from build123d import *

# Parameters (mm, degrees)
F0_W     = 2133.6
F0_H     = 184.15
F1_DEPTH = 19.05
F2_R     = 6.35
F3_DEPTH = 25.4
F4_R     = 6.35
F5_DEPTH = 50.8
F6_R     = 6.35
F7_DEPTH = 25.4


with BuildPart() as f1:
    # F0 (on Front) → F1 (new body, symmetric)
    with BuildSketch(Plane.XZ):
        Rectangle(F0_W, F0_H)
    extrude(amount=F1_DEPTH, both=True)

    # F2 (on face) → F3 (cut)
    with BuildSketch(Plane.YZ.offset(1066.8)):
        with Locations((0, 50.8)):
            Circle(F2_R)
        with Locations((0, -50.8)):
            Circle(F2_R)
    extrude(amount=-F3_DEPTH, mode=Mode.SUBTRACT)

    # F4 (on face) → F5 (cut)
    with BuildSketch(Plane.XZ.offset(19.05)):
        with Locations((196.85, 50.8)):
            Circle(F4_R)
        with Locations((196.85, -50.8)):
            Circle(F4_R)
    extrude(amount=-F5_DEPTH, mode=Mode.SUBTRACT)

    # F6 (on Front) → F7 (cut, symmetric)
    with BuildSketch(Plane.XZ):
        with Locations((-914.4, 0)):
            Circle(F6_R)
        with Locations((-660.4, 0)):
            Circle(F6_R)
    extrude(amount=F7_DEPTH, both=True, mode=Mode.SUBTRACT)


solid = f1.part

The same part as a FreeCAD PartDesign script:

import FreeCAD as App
import Part
import Sketcher
from FreeCAD import Vector
Q = App.Units.Quantity

doc = App.newDocument("Part")
body = doc.addObject("PartDesign::Body", "Body")

# Sketch on XZ plane
sketch1 = doc.addObject("Sketcher::SketchObject", "Sketch")
body.addObject(sketch1)
sketch1.AttachmentSupport = (doc.XZ_Plane, [""])
sketch1.MapMode = "FlatFace"
sketch1.addGeometry([
    Part.LineSegment(Vector(-1067, 92, 0), Vector(-1067, -92, 0)),
    Part.LineSegment(Vector(-1067, -92, 0), Vector(1067, -92, 0)),
    Part.LineSegment(Vector(1067, -92, 0), Vector(1067, 92, 0)),
    Part.LineSegment(Vector(1067, 92, 0), Vector(-1067, 92, 0)),
], False)
sketch1.addConstraint([
    Sketcher.Constraint("Coincident", 0, 2, 1, 1),
    Sketcher.Constraint("Coincident", 1, 2, 2, 1),
    Sketcher.Constraint("Coincident", 2, 2, 3, 1),
    Sketcher.Constraint("Coincident", 3, 2, 0, 1),
    Sketcher.Constraint("Vertical", 0),
    Sketcher.Constraint("Horizontal", 1),
    Sketcher.Constraint("Vertical", 2),
    Sketcher.Constraint("Horizontal", 3),
    Sketcher.Constraint("Symmetric", 0, 2, 2, 2, -1, 1),
    Sketcher.Constraint("DistanceX", 1, 1, 1, 2, Q("84 in")),
    Sketcher.Constraint("DistanceY", 0, 2, 0, 1, Q("7.25 in")),
])
pad1 = doc.addObject("PartDesign::Pad", "Pad")
body.addObject(pad1)
pad1.Profile = sketch1
pad1.Length = Q("1.5 in")
pad1.Midplane = True

# Sketch on YZ plane
sketch2 = doc.addObject("Sketcher::SketchObject", "Sketch001")
body.addObject(sketch2)
sketch2.AttachmentSupport = (doc.YZ_Plane, [""])
sketch2.MapMode = "FlatFace"
sketch2.AttachmentOffset = App.Placement(Vector(0, 0, 42 * 25.4), App.Rotation())
sketch2.addGeometry([
    Part.Circle(Vector(0, 51, 0), Vector(0, 0, 1), 6),
    Part.Circle(Vector(0, -51, 0), Vector(0, 0, 1), 6),
], False)
sketch2.addConstraint([
    Sketcher.Constraint("Equal", 0, 1),
    Sketcher.Constraint("Symmetric", 0, 3, 1, 3, -1, 1),
    Sketcher.Constraint("PointOnObject", 0, 3, -2),
    Sketcher.Constraint("Diameter", 0, Q("0.5 in")),
    Sketcher.Constraint("DistanceY", -1, 1, 0, 3, Q("2 in")),
])
pocket1 = doc.addObject("PartDesign::Pocket", "Pocket")
body.addObject(pocket1)
pocket1.Profile = sketch2
pocket1.Length = Q("1 in")

# Sketch on XZ plane
sketch3 = doc.addObject("Sketcher::SketchObject", "Sketch002")
body.addObject(sketch3)
sketch3.AttachmentSupport = (doc.XZ_Plane, [""])
sketch3.MapMode = "FlatFace"
sketch3.AttachmentOffset = App.Placement(Vector(0, 0, 0.75 * 25.4), App.Rotation())
sketch3.addGeometry([
    Part.Circle(Vector(197, 51, 0), Vector(0, 0, 1), 6),
    Part.Circle(Vector(197, -51, 0), Vector(0, 0, 1), 6),
], False)
sketch3.addConstraint([
    Sketcher.Constraint("Equal", 0, 1),
    Sketcher.Constraint("Symmetric", 0, 3, 1, 3, -1),
    Sketcher.Constraint("Diameter", 0, Q("0.5 in")),
    Sketcher.Constraint("DistanceY", -1, 1, 0, 3, Q("2 in")),
    Sketcher.Constraint("DistanceX", -1, 1, 0, 3, Q("7.75 in")),
])
pocket2 = doc.addObject("PartDesign::Pocket", "Pocket001")
body.addObject(pocket2)
pocket2.Profile = sketch3
pocket2.Length = Q("2 in")

# Sketch on XZ plane
sketch4 = doc.addObject("Sketcher::SketchObject", "Sketch003")
body.addObject(sketch4)
sketch4.AttachmentSupport = (doc.XZ_Plane, [""])
sketch4.MapMode = "FlatFace"
sketch4.addGeometry([
    Part.Circle(Vector(-914, 0, 0), Vector(0, 0, 1), 6),
    Part.Circle(Vector(-660, 0, 0), Vector(0, 0, 1), 6),
], False)
sketch4.addConstraint([
    Sketcher.Constraint("Equal", 0, 1),
    Sketcher.Constraint("PointOnObject", 0, 3, -1),
    Sketcher.Constraint("PointOnObject", 1, 3, -1),
    Sketcher.Constraint("Diameter", 0, Q("0.5 in")),
    Sketcher.Constraint("DistanceX", 0, 3, -1, 1, Q("36 in")),
    Sketcher.Constraint("DistanceX", 1, 3, -1, 1, Q("26 in")),
])
pocket3 = doc.addObject("PartDesign::Pocket", "Pocket002")
body.addObject(pocket3)
pocket3.Profile = sketch4
pocket3.Length = Q("2 in")
pocket3.Midplane = True

doc.recompute()
